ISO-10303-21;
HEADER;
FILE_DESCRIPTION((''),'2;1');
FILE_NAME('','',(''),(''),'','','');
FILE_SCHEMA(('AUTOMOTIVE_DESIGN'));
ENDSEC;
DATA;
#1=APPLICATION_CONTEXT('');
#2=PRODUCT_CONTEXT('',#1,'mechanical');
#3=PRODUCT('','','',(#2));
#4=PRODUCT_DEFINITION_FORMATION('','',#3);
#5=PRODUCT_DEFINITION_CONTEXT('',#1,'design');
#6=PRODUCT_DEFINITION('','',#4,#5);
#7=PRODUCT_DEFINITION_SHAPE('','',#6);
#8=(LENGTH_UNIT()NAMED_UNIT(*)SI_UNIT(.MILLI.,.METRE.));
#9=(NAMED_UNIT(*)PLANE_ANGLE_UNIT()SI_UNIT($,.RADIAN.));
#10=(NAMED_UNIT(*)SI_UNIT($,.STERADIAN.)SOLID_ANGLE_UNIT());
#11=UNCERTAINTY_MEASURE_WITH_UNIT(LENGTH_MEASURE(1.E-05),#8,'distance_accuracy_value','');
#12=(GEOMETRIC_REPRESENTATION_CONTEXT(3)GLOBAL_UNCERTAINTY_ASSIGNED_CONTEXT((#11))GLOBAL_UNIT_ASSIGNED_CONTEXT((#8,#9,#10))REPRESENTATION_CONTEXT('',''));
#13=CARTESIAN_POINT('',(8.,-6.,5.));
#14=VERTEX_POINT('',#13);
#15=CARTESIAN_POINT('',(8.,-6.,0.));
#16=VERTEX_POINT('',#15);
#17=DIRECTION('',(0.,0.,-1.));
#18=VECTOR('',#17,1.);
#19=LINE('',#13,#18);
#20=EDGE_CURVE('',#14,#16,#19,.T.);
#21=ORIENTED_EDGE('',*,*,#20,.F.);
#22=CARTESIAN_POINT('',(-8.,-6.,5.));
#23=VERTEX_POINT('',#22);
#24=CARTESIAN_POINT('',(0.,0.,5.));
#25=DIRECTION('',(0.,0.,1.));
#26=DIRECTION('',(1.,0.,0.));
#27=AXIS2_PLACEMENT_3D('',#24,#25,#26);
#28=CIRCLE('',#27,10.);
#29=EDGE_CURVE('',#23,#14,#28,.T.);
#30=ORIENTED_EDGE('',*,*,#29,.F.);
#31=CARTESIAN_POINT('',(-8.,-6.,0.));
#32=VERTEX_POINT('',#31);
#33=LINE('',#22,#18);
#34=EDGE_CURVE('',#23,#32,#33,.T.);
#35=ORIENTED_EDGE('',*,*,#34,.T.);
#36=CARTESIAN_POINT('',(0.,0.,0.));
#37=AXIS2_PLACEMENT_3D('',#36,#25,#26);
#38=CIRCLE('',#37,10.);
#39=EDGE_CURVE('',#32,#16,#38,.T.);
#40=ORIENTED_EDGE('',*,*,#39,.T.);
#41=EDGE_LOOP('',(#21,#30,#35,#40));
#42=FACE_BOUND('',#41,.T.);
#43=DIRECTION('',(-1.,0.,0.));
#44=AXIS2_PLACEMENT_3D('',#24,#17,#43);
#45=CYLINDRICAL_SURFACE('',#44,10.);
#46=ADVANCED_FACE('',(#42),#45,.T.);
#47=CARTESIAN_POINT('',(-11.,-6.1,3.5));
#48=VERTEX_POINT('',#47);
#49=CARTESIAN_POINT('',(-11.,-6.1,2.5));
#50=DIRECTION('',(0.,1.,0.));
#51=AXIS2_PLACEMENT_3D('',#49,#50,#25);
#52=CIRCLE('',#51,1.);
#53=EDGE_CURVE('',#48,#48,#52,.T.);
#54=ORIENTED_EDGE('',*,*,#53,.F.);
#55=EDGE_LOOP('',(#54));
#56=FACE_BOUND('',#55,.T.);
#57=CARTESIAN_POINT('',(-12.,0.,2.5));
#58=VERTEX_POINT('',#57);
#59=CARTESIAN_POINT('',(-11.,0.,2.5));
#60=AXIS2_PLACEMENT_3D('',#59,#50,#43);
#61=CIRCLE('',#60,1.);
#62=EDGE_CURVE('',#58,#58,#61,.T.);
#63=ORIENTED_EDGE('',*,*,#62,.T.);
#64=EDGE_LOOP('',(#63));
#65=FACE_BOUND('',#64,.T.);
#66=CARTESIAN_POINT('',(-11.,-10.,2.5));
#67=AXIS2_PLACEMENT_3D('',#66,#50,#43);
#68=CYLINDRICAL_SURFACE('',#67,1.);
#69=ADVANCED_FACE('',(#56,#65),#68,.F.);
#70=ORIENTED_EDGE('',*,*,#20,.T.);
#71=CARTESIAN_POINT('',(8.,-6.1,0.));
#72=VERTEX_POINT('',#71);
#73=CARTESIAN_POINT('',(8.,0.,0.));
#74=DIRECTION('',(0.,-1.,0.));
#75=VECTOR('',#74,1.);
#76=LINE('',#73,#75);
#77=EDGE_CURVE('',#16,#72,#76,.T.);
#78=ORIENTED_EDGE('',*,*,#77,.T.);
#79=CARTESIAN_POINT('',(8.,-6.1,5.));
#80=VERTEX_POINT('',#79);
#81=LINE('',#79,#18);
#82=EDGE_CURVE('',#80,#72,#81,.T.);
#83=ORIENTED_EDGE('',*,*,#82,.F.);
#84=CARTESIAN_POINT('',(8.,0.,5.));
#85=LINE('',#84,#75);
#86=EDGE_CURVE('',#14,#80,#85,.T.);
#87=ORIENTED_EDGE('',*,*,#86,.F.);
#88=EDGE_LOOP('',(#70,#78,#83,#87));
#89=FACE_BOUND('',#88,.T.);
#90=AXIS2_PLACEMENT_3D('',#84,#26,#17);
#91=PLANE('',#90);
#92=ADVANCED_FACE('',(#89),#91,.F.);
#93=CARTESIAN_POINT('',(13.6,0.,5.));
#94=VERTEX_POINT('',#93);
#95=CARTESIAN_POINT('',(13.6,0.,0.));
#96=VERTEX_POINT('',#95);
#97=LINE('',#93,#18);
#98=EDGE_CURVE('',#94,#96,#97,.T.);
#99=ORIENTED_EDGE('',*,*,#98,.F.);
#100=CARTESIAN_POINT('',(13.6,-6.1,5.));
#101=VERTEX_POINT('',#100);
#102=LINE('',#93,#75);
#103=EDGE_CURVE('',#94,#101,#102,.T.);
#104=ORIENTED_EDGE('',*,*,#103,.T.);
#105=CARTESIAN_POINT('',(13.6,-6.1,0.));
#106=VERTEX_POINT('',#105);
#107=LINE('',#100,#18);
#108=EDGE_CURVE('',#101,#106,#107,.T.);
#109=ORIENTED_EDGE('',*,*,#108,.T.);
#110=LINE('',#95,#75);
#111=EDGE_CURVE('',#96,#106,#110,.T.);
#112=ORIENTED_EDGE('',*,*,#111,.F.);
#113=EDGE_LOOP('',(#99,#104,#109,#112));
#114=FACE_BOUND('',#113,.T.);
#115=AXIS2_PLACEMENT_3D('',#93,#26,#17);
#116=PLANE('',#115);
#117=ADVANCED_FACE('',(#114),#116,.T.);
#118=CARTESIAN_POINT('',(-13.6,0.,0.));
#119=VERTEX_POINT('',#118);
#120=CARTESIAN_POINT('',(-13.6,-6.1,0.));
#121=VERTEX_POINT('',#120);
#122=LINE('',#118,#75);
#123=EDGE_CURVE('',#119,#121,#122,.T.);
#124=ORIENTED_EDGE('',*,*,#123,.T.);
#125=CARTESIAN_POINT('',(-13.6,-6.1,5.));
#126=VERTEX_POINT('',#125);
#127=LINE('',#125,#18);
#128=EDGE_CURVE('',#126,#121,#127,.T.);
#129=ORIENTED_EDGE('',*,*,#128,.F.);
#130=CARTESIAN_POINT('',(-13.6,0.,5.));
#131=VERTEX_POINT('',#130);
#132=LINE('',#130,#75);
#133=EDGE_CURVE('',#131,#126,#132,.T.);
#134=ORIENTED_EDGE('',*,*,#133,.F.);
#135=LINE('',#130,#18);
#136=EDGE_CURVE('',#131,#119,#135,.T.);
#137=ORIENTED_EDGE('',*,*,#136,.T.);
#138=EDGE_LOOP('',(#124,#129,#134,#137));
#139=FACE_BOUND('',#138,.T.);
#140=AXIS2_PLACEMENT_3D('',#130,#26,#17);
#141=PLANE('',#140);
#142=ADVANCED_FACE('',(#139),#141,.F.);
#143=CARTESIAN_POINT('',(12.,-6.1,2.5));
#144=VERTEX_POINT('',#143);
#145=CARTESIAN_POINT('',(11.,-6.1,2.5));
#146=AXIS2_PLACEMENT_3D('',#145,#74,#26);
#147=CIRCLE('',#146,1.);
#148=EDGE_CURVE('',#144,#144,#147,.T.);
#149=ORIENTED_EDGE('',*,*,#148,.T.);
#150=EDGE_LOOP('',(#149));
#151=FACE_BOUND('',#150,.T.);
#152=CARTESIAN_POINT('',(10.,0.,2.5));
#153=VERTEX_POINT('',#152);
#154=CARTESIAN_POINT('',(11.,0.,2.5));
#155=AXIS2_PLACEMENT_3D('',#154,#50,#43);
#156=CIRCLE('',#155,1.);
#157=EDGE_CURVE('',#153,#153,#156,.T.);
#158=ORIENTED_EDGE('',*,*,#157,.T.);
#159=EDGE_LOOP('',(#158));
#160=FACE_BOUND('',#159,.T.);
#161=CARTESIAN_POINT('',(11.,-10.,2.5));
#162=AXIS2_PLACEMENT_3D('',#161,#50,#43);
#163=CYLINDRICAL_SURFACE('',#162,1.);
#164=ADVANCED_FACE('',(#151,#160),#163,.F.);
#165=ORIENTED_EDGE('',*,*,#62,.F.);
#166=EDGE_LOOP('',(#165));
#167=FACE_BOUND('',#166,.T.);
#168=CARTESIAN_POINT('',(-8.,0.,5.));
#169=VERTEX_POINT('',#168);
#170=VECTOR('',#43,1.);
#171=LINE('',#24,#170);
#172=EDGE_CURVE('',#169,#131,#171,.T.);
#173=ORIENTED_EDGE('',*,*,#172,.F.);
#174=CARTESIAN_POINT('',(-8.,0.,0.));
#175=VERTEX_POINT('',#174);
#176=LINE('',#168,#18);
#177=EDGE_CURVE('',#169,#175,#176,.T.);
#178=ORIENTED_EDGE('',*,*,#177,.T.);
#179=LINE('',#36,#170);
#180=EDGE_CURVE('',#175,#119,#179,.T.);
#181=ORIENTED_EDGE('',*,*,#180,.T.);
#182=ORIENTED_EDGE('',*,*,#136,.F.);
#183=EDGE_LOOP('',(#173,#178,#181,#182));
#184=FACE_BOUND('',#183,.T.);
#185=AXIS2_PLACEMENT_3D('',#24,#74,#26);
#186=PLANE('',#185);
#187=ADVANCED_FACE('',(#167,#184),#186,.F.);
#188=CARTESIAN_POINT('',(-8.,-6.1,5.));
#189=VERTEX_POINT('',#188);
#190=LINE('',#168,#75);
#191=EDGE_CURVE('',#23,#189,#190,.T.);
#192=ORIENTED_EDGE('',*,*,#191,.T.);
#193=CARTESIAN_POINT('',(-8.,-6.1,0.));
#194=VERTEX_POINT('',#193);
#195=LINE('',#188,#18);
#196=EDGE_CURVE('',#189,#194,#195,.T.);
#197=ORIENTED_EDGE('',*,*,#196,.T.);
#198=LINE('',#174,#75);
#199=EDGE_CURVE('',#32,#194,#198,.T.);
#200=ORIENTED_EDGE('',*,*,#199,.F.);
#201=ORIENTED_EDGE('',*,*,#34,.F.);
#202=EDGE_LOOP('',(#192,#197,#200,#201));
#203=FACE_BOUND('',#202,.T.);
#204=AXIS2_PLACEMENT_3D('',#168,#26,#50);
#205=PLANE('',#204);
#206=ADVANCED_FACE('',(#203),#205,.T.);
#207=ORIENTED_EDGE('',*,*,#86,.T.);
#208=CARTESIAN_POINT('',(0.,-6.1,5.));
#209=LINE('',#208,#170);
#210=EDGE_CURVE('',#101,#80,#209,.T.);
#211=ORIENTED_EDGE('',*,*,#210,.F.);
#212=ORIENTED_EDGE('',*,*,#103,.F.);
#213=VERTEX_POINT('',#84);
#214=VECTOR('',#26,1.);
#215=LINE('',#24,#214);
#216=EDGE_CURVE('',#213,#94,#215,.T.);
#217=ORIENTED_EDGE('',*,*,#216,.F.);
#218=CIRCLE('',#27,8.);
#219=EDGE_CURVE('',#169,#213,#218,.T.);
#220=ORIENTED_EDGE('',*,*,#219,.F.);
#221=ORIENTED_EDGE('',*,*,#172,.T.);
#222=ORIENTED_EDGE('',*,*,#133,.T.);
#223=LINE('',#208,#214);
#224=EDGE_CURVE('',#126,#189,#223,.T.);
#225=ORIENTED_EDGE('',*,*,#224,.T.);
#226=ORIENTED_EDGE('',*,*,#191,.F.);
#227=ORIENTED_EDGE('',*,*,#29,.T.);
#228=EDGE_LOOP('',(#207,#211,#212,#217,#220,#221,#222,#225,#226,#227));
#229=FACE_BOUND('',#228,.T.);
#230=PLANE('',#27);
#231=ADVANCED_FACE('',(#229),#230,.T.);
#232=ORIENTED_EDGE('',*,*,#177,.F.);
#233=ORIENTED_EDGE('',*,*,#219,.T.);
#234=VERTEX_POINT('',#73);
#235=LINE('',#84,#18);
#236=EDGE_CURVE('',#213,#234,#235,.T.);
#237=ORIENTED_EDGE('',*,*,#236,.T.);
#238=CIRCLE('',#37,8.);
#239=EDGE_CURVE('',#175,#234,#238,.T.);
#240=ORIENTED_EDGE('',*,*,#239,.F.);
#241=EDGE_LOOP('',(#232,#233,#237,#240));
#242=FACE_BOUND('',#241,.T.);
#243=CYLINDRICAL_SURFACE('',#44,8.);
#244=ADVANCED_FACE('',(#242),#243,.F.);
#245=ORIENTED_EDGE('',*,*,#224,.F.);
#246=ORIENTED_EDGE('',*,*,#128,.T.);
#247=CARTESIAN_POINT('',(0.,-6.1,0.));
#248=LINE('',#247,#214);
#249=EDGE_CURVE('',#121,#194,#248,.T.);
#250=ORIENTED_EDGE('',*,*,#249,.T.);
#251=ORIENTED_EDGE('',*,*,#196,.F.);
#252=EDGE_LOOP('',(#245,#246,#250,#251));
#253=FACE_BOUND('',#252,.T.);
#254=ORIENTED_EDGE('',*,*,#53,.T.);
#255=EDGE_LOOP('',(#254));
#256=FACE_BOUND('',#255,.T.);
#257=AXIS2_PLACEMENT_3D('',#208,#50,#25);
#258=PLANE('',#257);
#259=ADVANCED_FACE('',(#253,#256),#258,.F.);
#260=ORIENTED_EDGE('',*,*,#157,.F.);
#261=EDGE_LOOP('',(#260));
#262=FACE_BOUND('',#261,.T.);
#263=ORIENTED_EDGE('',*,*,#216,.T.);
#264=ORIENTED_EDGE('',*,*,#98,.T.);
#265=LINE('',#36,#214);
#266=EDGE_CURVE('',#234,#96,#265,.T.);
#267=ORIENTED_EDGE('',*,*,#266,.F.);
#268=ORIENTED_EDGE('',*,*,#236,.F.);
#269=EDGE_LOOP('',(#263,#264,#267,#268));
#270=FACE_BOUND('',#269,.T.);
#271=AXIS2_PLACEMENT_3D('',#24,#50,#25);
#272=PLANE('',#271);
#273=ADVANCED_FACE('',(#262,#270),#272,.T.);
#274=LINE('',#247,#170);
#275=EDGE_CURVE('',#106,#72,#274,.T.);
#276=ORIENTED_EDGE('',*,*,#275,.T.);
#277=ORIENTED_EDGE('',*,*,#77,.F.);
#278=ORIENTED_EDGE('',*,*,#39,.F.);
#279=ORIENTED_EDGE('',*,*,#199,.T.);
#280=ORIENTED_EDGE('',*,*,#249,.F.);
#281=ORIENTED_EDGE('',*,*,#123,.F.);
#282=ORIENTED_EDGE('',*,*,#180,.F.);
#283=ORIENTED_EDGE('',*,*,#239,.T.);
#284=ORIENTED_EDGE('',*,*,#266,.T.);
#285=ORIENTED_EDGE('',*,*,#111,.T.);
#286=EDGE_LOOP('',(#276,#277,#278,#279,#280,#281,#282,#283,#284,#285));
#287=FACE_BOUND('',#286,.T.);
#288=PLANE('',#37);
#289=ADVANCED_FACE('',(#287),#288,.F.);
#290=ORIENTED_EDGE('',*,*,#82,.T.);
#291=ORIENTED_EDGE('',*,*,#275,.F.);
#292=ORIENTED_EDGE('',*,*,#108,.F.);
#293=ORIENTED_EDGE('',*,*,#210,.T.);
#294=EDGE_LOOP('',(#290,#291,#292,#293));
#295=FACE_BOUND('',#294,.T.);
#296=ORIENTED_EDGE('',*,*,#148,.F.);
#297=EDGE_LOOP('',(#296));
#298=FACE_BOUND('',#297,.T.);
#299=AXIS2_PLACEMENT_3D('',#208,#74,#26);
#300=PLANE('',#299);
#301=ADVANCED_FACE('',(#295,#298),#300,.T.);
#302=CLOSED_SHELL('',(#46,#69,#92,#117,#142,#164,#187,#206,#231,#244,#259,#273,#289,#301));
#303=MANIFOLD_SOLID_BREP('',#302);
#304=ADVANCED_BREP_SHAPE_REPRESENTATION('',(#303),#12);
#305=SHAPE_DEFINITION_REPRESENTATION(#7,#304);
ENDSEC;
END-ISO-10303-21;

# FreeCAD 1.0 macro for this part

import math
import FreeCAD as App
import Part
import Sketcher
from FreeCAD import Vector
Q = App.Units.Quantity

doc = App.newDocument("Part")
body = doc.addObject("PartDesign::Body", "Body")

sketch1 = body.newObject("Sketcher::SketchObject", "Sketch")
sketch1.AttachmentSupport = (doc.getObject("XY_Plane"), [""])
sketch1.MapMode = "FlatFace"
sketch1.addGeometry([
    Part.ArcOfCircle(Part.Circle(Vector(0, 0, 0), Vector(0, 0, 1), 10), math.radians(-143), math.radians(-37)),
    Part.LineSegment(Vector(8, -6, 0), Vector(8, -6.1, 0)),
    Part.LineSegment(Vector(8, -6.1, 0), Vector(13.6, -6.1, 0)),
    Part.LineSegment(Vector(13.6, -6.1, 0), Vector(13.6, 0, 0)),
    Part.LineSegment(Vector(13.6, 0, 0), Vector(8, 0, 0)),
    Part.ArcOfCircle(Part.Circle(Vector(0, 0, 0), Vector(0, 0, 1), 8), math.radians(180), math.radians(360)),
    Part.LineSegment(Vector(-8, 0, 0), Vector(-13.6, 0, 0)),
    Part.LineSegment(Vector(-13.6, 0, 0), Vector(-13.6, -6.1, 0)),
    Part.LineSegment(Vector(-13.6, -6.1, 0), Vector(-8, -6.1, 0)),
    Part.LineSegment(Vector(-8, -6.1, 0), Vector(-8, -6, 0)),
], False)
sketch1.addConstraint([
    Sketcher.Constraint("Coincident", 0, 2, 1, 1),
    Sketcher.Constraint("Coincident", 1, 2, 2, 1),
    Sketcher.Constraint("Coincident", 2, 2, 3, 1),
    Sketcher.Constraint("Coincident", 3, 2, 4, 1),
    Sketcher.Constraint("Coincident", 4, 2, 5, 2),
    Sketcher.Constraint("Coincident", 5, 1, 6, 1),
    Sketcher.Constraint("Coincident", 6, 2, 7, 1),
    Sketcher.Constraint("Coincident", 7, 2, 8, 1),
    Sketcher.Constraint("Coincident", 8, 2, 9, 1),
    Sketcher.Constraint("Coincident", 9, 2, 0, 1),
    Sketcher.Constraint("Vertical", 1),
    Sketcher.Constraint("Horizontal", 2),
    Sketcher.Constraint("Vertical", 3),
    Sketcher.Constraint("Horizontal", 4),
    Sketcher.Constraint("Horizontal", 6),
    Sketcher.Constraint("Vertical", 7),
    Sketcher.Constraint("Horizontal", 8),
    Sketcher.Constraint("Vertical", 9),
    Sketcher.Constraint("Coincident", 0, 3, -1, 1),
    Sketcher.Constraint("Coincident", 5, 3, -1, 1),
    Sketcher.Constraint("Symmetric", 3, 2, 6, 2, -1, 1),
    Sketcher.Constraint("Symmetric", 1, 2, 8, 2, -2),
    Sketcher.Constraint("PointOnObject", 3, 2, -1),
    Sketcher.Constraint("Vertical", 1, 2, 4, 2),
    Sketcher.Constraint("Radius", 0, Q("10 mm")),
    Sketcher.Constraint("Radius", 5, Q("8 mm")),
    Sketcher.Constraint("DistanceX", 2, 1, 2, 2, Q("5.6 mm")),
    Sketcher.Constraint("DistanceY", 1, 2, 1, 1, Q("0.1 mm")),
])
pad1 = body.newObject("PartDesign::Pad", "Pad")
pad1.Profile = sketch1
pad1.Length = 5

sketch2 = body.newObject("Sketcher::SketchObject", "Sketch001")
sketch2.AttachmentSupport = (doc.getObject("XZ_Plane"), [""])
sketch2.MapMode = "FlatFace"
sketch2.addGeometry([
    Part.Circle(Vector(-11, 2.5, 0), Vector(0, 0, 1), 1),
    Part.Circle(Vector(11, 2.5, 0), Vector(0, 0, 1), 1),
], False)
sketch2.addConstraint([
    Sketcher.Constraint("Equal", 0, 1),
    Sketcher.Constraint("Symmetric", 0, 3, 1, 3, -2),
    Sketcher.Constraint("Diameter", 0, Q("2 mm")),
    Sketcher.Constraint("DistanceX", 0, 3, -1, 1, Q("11 mm")),
    Sketcher.Constraint("DistanceY", -1, 1, 0, 3, Q("2.5 mm")),
])
pocket1 = body.newObject("PartDesign::Pocket", "Pocket")
pocket1.Profile = sketch2
pocket1.Length = 10
pocket1.Reversed = True

doc.recompute()
